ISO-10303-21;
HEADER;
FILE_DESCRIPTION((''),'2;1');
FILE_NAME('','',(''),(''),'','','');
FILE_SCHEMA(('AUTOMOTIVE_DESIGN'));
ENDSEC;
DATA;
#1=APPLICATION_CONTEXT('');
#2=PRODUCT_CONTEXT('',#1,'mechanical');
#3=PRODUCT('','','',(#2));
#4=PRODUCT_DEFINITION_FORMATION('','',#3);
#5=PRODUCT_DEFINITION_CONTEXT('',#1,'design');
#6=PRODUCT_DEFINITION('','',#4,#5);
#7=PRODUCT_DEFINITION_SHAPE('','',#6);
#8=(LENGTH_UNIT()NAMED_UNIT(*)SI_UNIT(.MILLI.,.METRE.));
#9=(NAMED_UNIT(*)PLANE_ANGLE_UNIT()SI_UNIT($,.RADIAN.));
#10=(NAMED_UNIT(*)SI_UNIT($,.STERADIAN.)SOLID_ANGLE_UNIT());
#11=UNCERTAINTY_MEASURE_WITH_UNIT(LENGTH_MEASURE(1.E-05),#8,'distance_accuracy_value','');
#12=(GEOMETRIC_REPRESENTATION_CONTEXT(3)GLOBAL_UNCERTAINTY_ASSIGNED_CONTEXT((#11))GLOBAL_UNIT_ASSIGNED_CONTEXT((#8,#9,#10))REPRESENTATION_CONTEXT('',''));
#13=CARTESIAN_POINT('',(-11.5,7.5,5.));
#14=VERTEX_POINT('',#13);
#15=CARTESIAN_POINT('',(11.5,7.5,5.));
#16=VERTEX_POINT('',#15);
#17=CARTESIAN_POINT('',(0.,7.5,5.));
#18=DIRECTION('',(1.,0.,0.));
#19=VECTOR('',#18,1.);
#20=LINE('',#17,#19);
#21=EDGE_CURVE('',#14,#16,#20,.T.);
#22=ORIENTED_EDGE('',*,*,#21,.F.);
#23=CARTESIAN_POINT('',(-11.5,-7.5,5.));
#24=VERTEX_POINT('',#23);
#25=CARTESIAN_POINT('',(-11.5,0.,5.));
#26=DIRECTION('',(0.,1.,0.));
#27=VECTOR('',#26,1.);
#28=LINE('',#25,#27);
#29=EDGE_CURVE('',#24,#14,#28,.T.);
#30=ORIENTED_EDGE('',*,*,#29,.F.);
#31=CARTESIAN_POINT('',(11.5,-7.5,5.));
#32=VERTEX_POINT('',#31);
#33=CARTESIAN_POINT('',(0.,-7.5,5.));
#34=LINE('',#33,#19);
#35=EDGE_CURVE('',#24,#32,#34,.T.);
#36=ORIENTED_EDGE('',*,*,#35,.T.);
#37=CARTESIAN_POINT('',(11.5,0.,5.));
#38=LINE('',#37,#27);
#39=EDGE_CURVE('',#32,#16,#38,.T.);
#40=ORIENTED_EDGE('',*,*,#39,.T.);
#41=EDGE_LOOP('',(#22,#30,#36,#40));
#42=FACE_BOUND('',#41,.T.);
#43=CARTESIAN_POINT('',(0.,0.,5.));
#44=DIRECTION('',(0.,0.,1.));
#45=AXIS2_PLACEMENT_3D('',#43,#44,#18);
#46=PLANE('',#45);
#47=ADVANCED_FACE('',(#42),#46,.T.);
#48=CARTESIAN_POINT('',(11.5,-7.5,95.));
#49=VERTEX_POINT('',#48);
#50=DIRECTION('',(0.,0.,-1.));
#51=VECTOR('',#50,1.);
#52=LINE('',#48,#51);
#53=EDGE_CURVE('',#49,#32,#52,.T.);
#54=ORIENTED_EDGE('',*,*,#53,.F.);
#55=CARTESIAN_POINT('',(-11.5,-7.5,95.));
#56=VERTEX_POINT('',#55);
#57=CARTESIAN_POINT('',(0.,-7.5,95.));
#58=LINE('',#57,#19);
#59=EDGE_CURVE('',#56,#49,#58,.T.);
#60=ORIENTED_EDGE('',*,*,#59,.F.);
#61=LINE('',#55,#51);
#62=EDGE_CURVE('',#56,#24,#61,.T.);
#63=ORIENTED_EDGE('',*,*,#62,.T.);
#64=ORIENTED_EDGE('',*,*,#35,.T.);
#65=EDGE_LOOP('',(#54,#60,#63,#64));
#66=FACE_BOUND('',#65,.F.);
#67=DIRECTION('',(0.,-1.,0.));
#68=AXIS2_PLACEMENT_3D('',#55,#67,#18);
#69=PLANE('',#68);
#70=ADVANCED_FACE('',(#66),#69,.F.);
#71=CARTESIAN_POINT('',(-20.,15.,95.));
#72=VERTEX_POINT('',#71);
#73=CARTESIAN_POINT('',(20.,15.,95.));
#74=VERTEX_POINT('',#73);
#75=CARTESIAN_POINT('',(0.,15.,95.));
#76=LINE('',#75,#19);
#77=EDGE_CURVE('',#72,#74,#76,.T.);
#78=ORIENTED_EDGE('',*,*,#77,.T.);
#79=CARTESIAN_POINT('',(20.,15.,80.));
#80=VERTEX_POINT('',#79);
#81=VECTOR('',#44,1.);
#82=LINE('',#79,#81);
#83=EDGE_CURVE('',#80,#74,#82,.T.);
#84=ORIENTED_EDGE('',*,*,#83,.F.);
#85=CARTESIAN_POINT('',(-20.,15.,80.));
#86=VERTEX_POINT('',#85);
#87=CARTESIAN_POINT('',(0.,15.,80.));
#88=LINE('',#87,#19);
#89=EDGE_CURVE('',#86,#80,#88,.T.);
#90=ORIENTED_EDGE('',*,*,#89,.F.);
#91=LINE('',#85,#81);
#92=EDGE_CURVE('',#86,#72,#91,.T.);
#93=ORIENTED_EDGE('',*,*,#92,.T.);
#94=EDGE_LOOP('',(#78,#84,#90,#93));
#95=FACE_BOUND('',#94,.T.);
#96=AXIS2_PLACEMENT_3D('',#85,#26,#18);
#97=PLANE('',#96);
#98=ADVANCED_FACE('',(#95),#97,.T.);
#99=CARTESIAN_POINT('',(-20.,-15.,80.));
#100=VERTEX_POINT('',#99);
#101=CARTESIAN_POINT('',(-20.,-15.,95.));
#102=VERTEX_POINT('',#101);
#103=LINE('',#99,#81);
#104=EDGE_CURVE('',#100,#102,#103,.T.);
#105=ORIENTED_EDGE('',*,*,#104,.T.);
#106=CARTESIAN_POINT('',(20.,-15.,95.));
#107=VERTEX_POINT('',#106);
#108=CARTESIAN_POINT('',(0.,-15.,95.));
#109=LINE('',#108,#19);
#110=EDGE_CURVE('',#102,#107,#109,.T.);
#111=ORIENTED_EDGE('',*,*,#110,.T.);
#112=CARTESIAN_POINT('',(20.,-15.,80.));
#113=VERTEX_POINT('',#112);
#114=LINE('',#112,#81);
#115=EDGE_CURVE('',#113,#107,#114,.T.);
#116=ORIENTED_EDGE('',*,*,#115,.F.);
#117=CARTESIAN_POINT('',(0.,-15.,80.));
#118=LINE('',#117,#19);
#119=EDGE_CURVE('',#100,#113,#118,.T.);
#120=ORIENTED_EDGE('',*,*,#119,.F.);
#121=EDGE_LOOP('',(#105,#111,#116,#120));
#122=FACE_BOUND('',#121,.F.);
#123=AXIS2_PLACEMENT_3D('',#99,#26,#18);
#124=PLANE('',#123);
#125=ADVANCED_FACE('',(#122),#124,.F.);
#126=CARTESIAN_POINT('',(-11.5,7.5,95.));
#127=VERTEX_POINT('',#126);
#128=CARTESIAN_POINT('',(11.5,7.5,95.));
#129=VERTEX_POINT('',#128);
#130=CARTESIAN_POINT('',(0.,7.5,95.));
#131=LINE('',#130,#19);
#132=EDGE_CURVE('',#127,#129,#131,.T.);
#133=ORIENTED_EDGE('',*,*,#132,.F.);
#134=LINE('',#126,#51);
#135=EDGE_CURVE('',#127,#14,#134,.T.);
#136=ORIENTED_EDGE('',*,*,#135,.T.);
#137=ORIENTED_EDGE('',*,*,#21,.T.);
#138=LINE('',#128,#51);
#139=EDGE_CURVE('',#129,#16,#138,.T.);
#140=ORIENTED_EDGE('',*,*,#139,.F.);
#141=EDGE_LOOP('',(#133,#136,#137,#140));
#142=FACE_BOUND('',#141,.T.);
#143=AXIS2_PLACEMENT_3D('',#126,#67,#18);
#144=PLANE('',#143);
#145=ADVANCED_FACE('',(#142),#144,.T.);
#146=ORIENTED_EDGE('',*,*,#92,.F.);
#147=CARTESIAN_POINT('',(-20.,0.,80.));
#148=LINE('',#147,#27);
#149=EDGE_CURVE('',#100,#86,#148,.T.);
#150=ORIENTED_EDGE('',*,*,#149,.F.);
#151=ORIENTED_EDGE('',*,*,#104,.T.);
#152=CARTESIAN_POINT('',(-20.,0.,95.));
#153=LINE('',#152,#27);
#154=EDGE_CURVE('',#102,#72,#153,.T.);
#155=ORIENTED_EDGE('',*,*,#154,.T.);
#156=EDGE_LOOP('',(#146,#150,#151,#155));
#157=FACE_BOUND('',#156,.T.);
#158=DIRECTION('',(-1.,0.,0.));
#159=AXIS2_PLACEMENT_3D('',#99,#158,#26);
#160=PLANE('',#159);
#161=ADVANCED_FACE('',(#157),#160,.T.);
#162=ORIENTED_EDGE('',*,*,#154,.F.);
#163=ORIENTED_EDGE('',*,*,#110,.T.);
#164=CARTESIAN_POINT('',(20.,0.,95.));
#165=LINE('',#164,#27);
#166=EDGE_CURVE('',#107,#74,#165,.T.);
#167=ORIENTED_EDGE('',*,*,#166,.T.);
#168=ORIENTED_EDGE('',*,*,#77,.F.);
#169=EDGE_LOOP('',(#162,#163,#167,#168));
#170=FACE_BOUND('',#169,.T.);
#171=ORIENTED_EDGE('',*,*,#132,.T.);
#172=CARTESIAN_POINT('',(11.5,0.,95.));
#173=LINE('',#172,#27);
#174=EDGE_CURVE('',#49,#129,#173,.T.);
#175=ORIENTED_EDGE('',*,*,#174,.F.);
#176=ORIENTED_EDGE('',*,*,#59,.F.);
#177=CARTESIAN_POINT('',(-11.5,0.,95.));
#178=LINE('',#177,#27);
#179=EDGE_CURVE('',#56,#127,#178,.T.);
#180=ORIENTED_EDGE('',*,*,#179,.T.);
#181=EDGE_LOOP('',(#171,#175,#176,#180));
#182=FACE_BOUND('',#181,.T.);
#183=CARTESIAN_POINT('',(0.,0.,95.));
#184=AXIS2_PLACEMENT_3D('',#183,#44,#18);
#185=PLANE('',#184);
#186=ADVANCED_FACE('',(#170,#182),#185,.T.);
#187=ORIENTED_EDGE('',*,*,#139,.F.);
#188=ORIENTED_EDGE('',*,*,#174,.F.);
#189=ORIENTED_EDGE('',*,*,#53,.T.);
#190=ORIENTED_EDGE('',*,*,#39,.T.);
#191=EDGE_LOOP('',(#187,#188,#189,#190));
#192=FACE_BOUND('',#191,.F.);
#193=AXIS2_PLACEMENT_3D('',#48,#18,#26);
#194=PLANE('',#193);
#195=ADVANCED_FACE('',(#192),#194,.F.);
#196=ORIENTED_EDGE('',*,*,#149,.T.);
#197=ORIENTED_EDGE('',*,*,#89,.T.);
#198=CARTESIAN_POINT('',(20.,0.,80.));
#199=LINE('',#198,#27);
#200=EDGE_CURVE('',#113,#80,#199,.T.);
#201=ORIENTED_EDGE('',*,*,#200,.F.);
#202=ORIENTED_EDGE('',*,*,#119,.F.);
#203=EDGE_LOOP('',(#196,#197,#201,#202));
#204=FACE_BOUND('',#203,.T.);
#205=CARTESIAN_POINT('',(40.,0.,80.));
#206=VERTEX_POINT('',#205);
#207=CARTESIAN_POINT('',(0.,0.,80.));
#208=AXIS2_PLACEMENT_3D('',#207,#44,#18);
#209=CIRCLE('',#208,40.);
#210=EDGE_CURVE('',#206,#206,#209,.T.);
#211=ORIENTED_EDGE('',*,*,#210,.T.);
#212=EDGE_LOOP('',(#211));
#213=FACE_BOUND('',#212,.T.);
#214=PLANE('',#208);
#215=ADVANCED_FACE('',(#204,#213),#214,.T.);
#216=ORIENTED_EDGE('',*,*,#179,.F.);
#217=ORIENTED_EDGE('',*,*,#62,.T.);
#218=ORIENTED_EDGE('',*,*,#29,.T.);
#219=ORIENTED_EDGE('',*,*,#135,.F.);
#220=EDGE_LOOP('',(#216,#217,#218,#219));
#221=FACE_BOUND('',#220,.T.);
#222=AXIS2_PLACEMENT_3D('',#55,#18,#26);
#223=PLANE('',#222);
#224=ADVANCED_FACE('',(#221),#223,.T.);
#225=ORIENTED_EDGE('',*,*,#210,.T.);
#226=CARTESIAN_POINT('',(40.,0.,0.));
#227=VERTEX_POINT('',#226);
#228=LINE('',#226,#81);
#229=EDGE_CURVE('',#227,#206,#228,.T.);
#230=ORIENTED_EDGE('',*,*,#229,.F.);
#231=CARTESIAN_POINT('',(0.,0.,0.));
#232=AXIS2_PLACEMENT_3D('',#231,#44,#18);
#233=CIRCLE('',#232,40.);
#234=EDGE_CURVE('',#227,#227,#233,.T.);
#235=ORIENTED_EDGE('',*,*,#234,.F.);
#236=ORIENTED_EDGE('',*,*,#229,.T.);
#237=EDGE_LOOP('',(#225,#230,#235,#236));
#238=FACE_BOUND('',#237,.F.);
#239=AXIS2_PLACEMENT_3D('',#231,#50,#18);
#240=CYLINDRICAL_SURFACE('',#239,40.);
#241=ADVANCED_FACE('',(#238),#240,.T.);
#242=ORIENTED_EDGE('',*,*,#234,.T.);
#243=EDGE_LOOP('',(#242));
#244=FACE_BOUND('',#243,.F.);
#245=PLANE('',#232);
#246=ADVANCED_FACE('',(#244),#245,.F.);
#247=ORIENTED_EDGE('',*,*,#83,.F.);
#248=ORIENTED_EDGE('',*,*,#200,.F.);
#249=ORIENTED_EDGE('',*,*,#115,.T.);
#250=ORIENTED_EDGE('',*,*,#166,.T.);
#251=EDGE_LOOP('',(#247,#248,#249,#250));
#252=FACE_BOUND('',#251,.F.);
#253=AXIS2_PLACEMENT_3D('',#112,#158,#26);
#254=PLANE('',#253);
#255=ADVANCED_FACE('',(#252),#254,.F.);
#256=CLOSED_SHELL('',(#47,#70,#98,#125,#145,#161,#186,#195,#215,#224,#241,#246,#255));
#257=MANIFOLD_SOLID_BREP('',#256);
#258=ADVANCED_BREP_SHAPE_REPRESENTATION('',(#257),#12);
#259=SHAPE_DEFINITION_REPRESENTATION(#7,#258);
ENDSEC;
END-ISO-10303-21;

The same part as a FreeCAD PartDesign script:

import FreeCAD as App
import Part
import Sketcher

V = App.Vector

doc = App.newDocument("Part")
body = doc.addObject("PartDesign::Body", "Body")

sketch1 = doc.addObject("Sketcher::SketchObject", "Sketch")
body.addObject(sketch1)
sketch1.AttachmentSupport = (doc.XY_Plane, [""])
sketch1.MapMode = "FlatFace"
sketch1.addGeometry(Part.Circle(V(0, 0, 0), V(0, 0, 1), 40), False)
sketch1.addConstraint(Sketcher.Constraint("Coincident", 0, 3, -1, 1))
sketch1.addConstraint(Sketcher.Constraint("Diameter", 0, 80.0))
pad1 = doc.addObject("PartDesign::Pad", "Pad")
body.addObject(pad1)
pad1.Profile = sketch1
pad1.Length = 80

sketch2 = doc.addObject("Sketcher::SketchObject", "Sketch001")
body.addObject(sketch2)
sketch2.AttachmentSupport = (doc.XY_Plane, [""])
sketch2.MapMode = "FlatFace"
sketch2.AttachmentOffset = App.Placement(V(0, 0, 80), App.Rotation())
sketch2.addGeometry(Part.LineSegment(V(-20, 15, 0), V(-20, -15, 0)), False)
sketch2.addGeometry(Part.LineSegment(V(-20, -15, 0), V(20, -15, 0)), False)
sketch2.addGeometry(Part.LineSegment(V(20, -15, 0), V(20, 15, 0)), False)
sketch2.addGeometry(Part.LineSegment(V(20, 15, 0), V(-20, 15, 0)), False)
sketch2.addConstraint(Sketcher.Constraint("Coincident", 0, 2, 1, 1))
sketch2.addConstraint(Sketcher.Constraint("Coincident", 1, 2, 2, 1))
sketch2.addConstraint(Sketcher.Constraint("Coincident", 2, 2, 3, 1))
sketch2.addConstraint(Sketcher.Constraint("Coincident", 3, 2, 0, 1))
sketch2.addConstraint(Sketcher.Constraint("Vertical", 0))
sketch2.addConstraint(Sketcher.Constraint("Horizontal", 1))
sketch2.addConstraint(Sketcher.Constraint("Vertical", 2))
sketch2.addConstraint(Sketcher.Constraint("Horizontal", 3))
sketch2.addConstraint(Sketcher.Constraint("Symmetric", 0, 2, 2, 2, -1, 1))
sketch2.addConstraint(Sketcher.Constraint("DistanceX", 1, 1, 1, 2, 40.0))
sketch2.addConstraint(Sketcher.Constraint("DistanceY", 0, 2, 0, 1, 30.0))
pad2 = doc.addObject("PartDesign::Pad", "Pad001")
body.addObject(pad2)
pad2.Profile = sketch2
pad2.Length = 15

sketch3 = doc.addObject("Sketcher::SketchObject", "Sketch002")
body.addObject(sketch3)
sketch3.AttachmentSupport = (doc.XY_Plane, [""])
sketch3.MapMode = "FlatFace"
sketch3.AttachmentOffset = App.Placement(V(0, 0, 95), App.Rotation())
sketch3.addGeometry(Part.LineSegment(V(-11.5, 7.5, 0), V(-11.5, -7.5, 0)), False)
sketch3.addGeometry(Part.LineSegment(V(-11.5, -7.5, 0), V(11.5, -7.5, 0)), False)
sketch3.addGeometry(Part.LineSegment(V(11.5, -7.5, 0), V(11.5, 7.5, 0)), False)
sketch3.addGeometry(Part.LineSegment(V(11.5, 7.5, 0), V(-11.5, 7.5, 0)), False)
sketch3.addConstraint(Sketcher.Constraint("Coincident", 0, 2, 1, 1))
sketch3.addConstraint(Sketcher.Constraint("Coincident", 1, 2, 2, 1))
sketch3.addConstraint(Sketcher.Constraint("Coincident", 2, 2, 3, 1))
sketch3.addConstraint(Sketcher.Constraint("Coincident", 3, 2, 0, 1))
sketch3.addConstraint(Sketcher.Constraint("Vertical", 0))
sketch3.addConstraint(Sketcher.Constraint("Horizontal", 1))
sketch3.addConstraint(Sketcher.Constraint("Vertical", 2))
sketch3.addConstraint(Sketcher.Constraint("Horizontal", 3))
sketch3.addConstraint(Sketcher.Constraint("Symmetric", 0, 2, 2, 2, -1, 1))
sketch3.addConstraint(Sketcher.Constraint("DistanceX", 1, 1, 1, 2, 23.0))
sketch3.addConstraint(Sketcher.Constraint("DistanceY", 0, 2, 0, 1, 15.0))
pocket1 = doc.addObject("PartDesign::Pocket", "Pocket")
body.addObject(pocket1)
pocket1.Profile = sketch3
pocket1.Length = 90

doc.recompute()
